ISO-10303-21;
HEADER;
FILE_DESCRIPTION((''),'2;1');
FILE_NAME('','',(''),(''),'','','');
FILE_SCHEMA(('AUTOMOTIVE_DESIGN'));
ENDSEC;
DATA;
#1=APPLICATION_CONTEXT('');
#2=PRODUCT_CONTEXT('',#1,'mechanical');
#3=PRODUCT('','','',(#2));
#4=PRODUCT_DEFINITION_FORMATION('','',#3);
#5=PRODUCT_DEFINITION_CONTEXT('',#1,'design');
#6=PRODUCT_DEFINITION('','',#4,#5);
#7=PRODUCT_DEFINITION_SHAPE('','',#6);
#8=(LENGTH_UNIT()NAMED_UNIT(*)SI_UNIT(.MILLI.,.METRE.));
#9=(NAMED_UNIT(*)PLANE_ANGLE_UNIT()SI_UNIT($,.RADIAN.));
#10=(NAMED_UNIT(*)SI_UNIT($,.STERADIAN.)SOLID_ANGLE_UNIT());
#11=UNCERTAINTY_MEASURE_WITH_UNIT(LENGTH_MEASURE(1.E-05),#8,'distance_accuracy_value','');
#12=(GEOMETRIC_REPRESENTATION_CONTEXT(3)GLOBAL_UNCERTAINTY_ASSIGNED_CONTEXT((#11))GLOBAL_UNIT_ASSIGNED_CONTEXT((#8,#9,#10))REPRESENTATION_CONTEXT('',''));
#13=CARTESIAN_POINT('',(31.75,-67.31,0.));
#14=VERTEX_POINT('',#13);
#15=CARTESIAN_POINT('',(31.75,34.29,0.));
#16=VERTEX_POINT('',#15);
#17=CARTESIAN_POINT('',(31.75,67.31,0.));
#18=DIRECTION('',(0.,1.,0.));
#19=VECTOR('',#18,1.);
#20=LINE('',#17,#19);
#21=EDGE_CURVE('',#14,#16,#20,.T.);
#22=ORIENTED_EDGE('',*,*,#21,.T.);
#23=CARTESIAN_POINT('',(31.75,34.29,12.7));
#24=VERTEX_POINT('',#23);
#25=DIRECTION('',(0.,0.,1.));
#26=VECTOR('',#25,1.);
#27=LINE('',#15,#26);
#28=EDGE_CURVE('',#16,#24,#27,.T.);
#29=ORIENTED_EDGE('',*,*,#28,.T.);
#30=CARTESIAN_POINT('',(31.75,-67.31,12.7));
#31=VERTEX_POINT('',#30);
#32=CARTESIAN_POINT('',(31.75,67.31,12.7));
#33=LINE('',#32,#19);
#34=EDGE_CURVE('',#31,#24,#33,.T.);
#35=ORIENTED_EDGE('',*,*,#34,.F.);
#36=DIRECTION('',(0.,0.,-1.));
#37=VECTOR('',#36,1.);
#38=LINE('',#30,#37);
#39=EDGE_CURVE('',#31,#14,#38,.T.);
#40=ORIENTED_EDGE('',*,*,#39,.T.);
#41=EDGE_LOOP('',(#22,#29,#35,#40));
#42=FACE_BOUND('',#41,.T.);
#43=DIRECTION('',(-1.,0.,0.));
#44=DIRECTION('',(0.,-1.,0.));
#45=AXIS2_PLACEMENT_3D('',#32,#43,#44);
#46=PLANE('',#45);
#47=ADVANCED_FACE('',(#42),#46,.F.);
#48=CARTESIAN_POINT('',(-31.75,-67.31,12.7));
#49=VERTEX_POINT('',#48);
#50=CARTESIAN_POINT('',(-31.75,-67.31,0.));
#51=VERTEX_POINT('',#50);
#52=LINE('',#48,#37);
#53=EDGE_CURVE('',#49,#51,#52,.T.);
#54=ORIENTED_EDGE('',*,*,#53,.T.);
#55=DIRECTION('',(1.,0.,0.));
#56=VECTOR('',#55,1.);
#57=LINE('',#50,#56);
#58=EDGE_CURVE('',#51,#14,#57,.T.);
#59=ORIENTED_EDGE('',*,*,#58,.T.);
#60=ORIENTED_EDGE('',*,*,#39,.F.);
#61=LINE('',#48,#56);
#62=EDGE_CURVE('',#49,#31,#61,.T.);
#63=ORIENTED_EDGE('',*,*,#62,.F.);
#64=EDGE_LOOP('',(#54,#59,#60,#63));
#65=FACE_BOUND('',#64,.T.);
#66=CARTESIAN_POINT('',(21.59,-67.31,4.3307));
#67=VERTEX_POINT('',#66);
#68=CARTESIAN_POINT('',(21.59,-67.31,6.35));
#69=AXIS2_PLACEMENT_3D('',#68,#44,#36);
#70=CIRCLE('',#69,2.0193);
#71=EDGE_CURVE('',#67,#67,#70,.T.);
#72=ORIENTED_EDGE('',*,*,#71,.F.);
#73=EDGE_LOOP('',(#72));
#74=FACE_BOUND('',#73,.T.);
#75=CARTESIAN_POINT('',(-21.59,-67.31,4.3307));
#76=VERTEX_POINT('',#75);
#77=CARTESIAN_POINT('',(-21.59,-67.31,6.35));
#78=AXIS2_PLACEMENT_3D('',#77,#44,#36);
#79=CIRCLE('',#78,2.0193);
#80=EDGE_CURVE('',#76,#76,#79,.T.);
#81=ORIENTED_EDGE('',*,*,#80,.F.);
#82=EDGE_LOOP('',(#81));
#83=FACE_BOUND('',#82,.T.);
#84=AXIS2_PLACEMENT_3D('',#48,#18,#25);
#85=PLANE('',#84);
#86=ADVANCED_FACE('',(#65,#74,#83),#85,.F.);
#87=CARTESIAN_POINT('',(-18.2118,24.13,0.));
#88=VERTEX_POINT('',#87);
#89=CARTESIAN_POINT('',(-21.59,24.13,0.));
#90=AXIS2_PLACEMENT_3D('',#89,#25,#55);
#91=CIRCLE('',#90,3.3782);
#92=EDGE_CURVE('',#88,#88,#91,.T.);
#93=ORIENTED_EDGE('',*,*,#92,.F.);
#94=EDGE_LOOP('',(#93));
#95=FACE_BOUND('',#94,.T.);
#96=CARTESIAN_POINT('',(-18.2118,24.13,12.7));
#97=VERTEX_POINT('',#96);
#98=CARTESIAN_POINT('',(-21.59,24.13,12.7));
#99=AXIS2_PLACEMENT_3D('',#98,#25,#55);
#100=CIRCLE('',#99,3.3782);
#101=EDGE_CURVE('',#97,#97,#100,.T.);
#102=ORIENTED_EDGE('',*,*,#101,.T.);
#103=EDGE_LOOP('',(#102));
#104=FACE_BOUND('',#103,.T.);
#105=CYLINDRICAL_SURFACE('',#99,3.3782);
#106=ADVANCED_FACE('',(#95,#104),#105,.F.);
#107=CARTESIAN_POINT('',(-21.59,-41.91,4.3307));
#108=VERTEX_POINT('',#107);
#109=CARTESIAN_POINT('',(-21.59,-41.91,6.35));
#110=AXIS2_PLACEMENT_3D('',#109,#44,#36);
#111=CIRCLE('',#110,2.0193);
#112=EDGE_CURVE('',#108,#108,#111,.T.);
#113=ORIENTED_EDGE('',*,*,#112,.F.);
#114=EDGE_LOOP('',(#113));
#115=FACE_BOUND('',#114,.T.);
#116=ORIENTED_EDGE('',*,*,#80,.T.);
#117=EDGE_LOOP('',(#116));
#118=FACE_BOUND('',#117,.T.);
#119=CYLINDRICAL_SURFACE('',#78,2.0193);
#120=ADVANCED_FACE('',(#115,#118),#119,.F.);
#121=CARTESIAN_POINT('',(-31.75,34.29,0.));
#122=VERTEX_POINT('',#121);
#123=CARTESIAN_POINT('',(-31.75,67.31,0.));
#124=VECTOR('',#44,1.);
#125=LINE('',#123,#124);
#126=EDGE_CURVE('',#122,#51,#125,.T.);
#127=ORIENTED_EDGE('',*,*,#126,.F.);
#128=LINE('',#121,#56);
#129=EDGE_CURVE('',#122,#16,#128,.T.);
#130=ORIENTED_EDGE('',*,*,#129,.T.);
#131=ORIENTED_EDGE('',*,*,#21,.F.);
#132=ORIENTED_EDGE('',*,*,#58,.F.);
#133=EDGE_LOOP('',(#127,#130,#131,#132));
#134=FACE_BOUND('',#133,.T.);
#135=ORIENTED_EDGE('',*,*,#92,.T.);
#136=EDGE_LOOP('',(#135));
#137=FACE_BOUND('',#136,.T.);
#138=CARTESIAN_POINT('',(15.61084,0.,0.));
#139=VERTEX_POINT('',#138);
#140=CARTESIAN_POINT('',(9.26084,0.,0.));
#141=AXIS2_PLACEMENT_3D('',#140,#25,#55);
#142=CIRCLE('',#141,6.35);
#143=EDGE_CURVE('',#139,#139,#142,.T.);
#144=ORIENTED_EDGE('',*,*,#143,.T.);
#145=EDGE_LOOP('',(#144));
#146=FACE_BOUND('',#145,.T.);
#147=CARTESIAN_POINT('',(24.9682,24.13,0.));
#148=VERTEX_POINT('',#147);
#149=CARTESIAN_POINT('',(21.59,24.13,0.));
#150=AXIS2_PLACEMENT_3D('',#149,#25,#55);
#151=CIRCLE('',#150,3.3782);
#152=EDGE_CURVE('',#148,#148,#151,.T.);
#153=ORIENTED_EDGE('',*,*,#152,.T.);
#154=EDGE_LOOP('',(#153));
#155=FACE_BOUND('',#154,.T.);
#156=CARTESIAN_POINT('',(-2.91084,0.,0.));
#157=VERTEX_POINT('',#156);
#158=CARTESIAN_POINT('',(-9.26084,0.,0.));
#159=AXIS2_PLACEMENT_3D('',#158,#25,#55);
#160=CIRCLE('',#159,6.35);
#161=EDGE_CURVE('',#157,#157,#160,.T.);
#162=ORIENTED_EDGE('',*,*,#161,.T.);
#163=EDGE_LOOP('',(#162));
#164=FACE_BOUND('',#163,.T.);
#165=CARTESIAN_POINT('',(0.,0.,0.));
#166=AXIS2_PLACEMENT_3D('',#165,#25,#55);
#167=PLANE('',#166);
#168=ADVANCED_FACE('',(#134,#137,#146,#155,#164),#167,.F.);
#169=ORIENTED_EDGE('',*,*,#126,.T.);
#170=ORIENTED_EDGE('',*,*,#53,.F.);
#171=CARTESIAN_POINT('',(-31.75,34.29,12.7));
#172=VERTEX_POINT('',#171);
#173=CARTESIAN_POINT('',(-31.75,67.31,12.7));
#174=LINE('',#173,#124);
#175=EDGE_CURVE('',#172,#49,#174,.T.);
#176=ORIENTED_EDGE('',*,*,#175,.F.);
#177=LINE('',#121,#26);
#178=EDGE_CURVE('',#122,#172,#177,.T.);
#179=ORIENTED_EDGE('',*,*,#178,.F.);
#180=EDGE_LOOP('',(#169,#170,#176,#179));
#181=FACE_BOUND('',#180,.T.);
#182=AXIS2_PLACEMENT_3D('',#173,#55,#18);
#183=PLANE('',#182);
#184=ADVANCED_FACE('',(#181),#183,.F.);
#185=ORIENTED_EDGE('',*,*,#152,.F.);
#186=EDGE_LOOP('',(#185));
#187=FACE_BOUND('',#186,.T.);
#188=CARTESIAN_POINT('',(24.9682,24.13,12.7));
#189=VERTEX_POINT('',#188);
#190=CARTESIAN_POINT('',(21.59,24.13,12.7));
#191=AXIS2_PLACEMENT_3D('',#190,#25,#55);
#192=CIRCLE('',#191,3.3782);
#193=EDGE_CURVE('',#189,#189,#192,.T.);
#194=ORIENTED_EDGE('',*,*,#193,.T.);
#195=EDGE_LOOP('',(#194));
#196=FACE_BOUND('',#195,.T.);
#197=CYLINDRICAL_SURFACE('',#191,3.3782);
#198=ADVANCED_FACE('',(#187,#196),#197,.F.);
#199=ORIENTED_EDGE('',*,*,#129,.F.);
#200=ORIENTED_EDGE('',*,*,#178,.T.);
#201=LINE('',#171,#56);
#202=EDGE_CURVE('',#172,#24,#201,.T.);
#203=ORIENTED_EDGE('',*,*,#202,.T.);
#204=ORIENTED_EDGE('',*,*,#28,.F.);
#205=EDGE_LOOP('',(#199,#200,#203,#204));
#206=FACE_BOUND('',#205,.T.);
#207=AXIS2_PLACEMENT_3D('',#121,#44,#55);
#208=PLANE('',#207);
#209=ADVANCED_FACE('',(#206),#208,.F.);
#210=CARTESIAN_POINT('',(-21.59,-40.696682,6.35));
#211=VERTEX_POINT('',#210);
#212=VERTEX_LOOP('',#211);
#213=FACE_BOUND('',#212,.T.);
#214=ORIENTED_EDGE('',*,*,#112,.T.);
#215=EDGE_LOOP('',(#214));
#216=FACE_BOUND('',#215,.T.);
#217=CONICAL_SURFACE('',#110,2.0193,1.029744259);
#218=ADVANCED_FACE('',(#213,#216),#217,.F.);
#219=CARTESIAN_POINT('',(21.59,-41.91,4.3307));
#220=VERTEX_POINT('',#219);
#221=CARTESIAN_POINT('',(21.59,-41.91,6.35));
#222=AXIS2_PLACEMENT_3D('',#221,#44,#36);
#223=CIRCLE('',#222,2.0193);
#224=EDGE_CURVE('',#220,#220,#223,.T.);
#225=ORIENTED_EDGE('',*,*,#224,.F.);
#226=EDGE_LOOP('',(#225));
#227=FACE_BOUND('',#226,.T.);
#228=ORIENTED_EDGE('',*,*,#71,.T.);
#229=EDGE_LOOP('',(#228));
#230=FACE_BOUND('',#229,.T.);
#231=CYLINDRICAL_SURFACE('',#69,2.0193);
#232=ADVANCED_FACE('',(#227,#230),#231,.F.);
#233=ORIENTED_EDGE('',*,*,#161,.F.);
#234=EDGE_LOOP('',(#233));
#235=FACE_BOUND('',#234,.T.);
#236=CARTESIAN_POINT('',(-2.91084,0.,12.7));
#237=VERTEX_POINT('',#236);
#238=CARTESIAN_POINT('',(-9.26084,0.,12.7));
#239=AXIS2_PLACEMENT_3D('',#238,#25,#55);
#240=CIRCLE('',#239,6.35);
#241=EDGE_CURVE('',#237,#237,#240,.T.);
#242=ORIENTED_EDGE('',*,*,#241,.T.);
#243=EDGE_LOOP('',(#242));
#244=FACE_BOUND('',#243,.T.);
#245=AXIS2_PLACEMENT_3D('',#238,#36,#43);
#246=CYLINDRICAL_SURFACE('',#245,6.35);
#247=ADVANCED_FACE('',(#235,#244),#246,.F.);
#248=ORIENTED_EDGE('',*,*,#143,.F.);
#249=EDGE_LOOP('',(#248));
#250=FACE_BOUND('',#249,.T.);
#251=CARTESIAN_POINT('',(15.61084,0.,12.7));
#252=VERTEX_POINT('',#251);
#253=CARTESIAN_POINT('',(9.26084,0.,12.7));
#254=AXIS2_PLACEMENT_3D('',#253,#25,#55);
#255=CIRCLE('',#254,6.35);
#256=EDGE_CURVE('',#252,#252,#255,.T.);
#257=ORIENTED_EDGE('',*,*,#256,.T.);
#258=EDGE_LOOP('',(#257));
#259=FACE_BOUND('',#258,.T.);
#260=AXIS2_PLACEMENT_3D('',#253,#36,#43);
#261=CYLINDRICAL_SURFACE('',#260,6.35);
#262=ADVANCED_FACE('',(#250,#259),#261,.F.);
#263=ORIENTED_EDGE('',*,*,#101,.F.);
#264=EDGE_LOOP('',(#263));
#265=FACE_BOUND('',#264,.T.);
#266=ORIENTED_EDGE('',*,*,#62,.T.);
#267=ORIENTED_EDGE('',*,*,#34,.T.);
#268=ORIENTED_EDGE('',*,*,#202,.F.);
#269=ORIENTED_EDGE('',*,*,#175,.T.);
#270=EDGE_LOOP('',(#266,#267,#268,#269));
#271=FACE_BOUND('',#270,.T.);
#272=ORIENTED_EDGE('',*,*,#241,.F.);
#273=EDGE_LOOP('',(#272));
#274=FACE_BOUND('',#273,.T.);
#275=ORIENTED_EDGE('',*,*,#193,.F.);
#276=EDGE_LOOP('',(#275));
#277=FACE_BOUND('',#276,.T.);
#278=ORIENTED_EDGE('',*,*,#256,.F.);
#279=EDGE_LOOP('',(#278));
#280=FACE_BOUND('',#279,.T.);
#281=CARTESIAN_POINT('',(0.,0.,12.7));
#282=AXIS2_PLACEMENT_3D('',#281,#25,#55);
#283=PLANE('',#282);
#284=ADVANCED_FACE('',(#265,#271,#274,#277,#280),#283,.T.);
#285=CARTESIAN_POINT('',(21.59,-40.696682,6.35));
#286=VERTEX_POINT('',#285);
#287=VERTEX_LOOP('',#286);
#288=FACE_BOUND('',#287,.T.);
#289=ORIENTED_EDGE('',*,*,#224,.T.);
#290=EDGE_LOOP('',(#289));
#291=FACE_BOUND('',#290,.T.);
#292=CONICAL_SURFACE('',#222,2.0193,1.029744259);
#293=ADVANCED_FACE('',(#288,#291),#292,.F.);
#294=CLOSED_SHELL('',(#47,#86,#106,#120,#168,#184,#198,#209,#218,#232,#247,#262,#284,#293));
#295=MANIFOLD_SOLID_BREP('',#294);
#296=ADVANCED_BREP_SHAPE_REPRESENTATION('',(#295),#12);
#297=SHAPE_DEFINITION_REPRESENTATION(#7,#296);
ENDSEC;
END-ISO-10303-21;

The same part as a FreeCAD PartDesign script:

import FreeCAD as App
import Part
import Sketcher
from FreeCAD import Vector
Q = App.Units.Quantity


def add_polygon(sketch, points):
    """Adds a closed chain of lines whose ends are joined by coincident constraints."""
    first, n = sketch.GeometryCount, len(points)
    for a, b in zip(points, points[1:] + points[:1]):
        sketch.addGeometry(Part.LineSegment(App.Vector(*a, 0), App.Vector(*b, 0)), False)
    for i in range(n):
        sketch.addConstraint(Sketcher.Constraint("Coincident", first + i, 2, first + (i + 1) % n, 1))

doc = App.newDocument("Part")
body = doc.addObject("PartDesign::Body", "Body")

# Sketch on XY plane
sketch1 = body.newObject("Sketcher::SketchObject", "Sketch")
sketch1.AttachmentSupport = (doc.getObject("XY_Plane"), [""])
sketch1.MapMode = "FlatFace"
add_polygon(sketch1, [(-31.75, 67.31), (-31.75, -67.31), (31.75, -67.31), (31.75, 67.31)])  # lines 0-3
sketch1.addGeometry(Part.Circle(Vector(-9.26084, 0, 0), Vector(0, 0, 1), 6.35), False)  # 4
sketch1.addGeometry(Part.Circle(Vector(9.26084, 0, 0), Vector(0, 0, 1), 6.35), False)  # 5
sketch1.addConstraint([
    Sketcher.Constraint("Vertical", 0),
    Sketcher.Constraint("Horizontal", 1),
    Sketcher.Constraint("Vertical", 2),
    Sketcher.Constraint("Horizontal", 3),
    Sketcher.Constraint("Equal", 4, 5),
    Sketcher.Constraint("Symmetric", 4, 3, 5, 3, -1, 1),
    Sketcher.Constraint("Symmetric", 0, 2, 2, 2, -1, 1),
    Sketcher.Constraint("PointOnObject", 4, 3, -1),
    Sketcher.Constraint("Diameter", 4, Q("0.5 in")),
    Sketcher.Constraint("DistanceX", 1, 1, 1, 2, Q("2.5 in")),
    Sketcher.Constraint("DistanceY", 0, 2, 0, 1, Q("5.3 in")),
    Sketcher.Constraint("DistanceX", 4, 3, -1, 1, Q("0.3646 in")),
])
pad1 = body.newObject("PartDesign::Pad", "Pad")
pad1.Profile = sketch1
pad1.Length = Q("0.5 in")

# Sketch on XY plane
sketch2 = body.newObject("Sketcher::SketchObject", "Sketch001")
sketch2.AttachmentSupport = (doc.getObject("XY_Plane"), [""])
sketch2.MapMode = "FlatFace"
sketch2.AttachmentOffset = App.Placement(Vector(0, 0, 0.5 * 25.4), App.Rotation())
add_polygon(sketch2, [(-31.75, 67.31), (-31.75, 34.29), (31.75, 34.29), (31.75, 67.31)])  # lines 0-3
sketch2.addConstraint([
    Sketcher.Constraint("Vertical", 0),
    Sketcher.Constraint("Horizontal", 1),
    Sketcher.Constraint("Vertical", 2),
    Sketcher.Constraint("Horizontal", 3),
    Sketcher.Constraint("DistanceX", 1, 1, 1, 2, Q("2.5 in")),
    Sketcher.Constraint("DistanceY", 0, 2, 0, 1, Q("1.3 in")),
    Sketcher.Constraint("DistanceX", 0, 2, -1, 1, Q("1.25 in")),
    Sketcher.Constraint("DistanceY", -1, 1, 0, 2, Q("1.35 in")),
])
pocket1 = body.newObject("PartDesign::Pocket", "Pocket")
pocket1.Profile = sketch2
pocket1.Type = "ThroughAll"

# Sketch on XY plane
sketch3 = body.newObject("Sketcher::SketchObject", "Sketch002")
sketch3.AttachmentSupport = (doc.getObject("XY_Plane"), [""])
sketch3.MapMode = "FlatFace"
sketch3.AttachmentOffset = App.Placement(Vector(0, 0, 0.5 * 25.4), App.Rotation())
sketch3.addGeometry(Part.Circle(Vector(-21.59, 24.13, 0), Vector(0, 0, 1), 3.3782), False)
sketch3.addConstraint([
    Sketcher.Constraint("Diameter", 0, Q("0.266 in")),
    Sketcher.Constraint("DistanceX", 0, 3, -1, 1, Q("0.85 in")),
    Sketcher.Constraint("DistanceY", -1, 1, 0, 3, Q("0.95 in")),
])
doc.recompute()
hole = body.newObject("PartDesign::Hole", "Hole")
hole.Profile = sketch3
hole.ThreadType = "None"
hole.Diameter = Q("0.266 in")
hole.DepthType = "ThroughAll"
doc.recompute()

mirrored = body.newObject("PartDesign::Mirrored", "Mirrored")
mirrored.Originals = [hole]
mirrored.MirrorPlane = (doc.getObject("YZ_Plane"), [""])
body.Tip = mirrored

# Sketch on YZ plane
sketch4 = body.newObject("Sketcher::SketchObject", "Sketch003")
sketch4.AttachmentSupport = (doc.getObject("YZ_Plane"), [""])
sketch4.MapMode = "FlatFace"
sketch4.AttachmentOffset = App.Placement(Vector(0, 0, -0.85 * 25.4), App.Rotation())
add_polygon(sketch4, [(-40.696682, 6.35), (-67.31, 6.35), (-67.31, 4.3307), (-41.91, 4.3307)])  # lines 0-3
sketch4.addGeometry(Part.LineSegment(Vector(-67.31, 6.35, 0), Vector(-40.696682, 6.35, 0)), True)  # axis
sketch4.addConstraint([
    Sketcher.Constraint("Horizontal", 0),
    Sketcher.Constraint("Vertical", 1),
    Sketcher.Constraint("Horizontal", 2),
    Sketcher.Constraint("Horizontal", 4),
    Sketcher.Constraint("Coincident", 4, 1, 0, 2),
    Sketcher.Constraint("Equal", 0, 4),
    Sketcher.Constraint("DistanceX", 2, 1, 2, 2, Q("1 in")),
    Sketcher.Constraint("Angle", 3, Q("59 deg")),
    Sketcher.Constraint("DistanceX", 0, 2, -1, 1, Q("2.65 in")),
    Sketcher.Constraint("DistanceY", -1, 1, 0, 2, Q("0.25 in")),
    Sketcher.Constraint("DistanceY", 1, 2, 1, 1, Q("0.0795 in")),
])
groove = body.newObject("PartDesign::Groove", "Groove")
groove.Profile = sketch4
groove.ReferenceAxis = (sketch4, ["Axis0"])
groove.Angle = 360
doc.recompute()

mirrored2 = body.newObject("PartDesign::Mirrored", "Mirrored001")
mirrored2.Originals = [groove]
mirrored2.MirrorPlane = (doc.getObject("YZ_Plane"), [""])
body.Tip = mirrored2

doc.recompute()
